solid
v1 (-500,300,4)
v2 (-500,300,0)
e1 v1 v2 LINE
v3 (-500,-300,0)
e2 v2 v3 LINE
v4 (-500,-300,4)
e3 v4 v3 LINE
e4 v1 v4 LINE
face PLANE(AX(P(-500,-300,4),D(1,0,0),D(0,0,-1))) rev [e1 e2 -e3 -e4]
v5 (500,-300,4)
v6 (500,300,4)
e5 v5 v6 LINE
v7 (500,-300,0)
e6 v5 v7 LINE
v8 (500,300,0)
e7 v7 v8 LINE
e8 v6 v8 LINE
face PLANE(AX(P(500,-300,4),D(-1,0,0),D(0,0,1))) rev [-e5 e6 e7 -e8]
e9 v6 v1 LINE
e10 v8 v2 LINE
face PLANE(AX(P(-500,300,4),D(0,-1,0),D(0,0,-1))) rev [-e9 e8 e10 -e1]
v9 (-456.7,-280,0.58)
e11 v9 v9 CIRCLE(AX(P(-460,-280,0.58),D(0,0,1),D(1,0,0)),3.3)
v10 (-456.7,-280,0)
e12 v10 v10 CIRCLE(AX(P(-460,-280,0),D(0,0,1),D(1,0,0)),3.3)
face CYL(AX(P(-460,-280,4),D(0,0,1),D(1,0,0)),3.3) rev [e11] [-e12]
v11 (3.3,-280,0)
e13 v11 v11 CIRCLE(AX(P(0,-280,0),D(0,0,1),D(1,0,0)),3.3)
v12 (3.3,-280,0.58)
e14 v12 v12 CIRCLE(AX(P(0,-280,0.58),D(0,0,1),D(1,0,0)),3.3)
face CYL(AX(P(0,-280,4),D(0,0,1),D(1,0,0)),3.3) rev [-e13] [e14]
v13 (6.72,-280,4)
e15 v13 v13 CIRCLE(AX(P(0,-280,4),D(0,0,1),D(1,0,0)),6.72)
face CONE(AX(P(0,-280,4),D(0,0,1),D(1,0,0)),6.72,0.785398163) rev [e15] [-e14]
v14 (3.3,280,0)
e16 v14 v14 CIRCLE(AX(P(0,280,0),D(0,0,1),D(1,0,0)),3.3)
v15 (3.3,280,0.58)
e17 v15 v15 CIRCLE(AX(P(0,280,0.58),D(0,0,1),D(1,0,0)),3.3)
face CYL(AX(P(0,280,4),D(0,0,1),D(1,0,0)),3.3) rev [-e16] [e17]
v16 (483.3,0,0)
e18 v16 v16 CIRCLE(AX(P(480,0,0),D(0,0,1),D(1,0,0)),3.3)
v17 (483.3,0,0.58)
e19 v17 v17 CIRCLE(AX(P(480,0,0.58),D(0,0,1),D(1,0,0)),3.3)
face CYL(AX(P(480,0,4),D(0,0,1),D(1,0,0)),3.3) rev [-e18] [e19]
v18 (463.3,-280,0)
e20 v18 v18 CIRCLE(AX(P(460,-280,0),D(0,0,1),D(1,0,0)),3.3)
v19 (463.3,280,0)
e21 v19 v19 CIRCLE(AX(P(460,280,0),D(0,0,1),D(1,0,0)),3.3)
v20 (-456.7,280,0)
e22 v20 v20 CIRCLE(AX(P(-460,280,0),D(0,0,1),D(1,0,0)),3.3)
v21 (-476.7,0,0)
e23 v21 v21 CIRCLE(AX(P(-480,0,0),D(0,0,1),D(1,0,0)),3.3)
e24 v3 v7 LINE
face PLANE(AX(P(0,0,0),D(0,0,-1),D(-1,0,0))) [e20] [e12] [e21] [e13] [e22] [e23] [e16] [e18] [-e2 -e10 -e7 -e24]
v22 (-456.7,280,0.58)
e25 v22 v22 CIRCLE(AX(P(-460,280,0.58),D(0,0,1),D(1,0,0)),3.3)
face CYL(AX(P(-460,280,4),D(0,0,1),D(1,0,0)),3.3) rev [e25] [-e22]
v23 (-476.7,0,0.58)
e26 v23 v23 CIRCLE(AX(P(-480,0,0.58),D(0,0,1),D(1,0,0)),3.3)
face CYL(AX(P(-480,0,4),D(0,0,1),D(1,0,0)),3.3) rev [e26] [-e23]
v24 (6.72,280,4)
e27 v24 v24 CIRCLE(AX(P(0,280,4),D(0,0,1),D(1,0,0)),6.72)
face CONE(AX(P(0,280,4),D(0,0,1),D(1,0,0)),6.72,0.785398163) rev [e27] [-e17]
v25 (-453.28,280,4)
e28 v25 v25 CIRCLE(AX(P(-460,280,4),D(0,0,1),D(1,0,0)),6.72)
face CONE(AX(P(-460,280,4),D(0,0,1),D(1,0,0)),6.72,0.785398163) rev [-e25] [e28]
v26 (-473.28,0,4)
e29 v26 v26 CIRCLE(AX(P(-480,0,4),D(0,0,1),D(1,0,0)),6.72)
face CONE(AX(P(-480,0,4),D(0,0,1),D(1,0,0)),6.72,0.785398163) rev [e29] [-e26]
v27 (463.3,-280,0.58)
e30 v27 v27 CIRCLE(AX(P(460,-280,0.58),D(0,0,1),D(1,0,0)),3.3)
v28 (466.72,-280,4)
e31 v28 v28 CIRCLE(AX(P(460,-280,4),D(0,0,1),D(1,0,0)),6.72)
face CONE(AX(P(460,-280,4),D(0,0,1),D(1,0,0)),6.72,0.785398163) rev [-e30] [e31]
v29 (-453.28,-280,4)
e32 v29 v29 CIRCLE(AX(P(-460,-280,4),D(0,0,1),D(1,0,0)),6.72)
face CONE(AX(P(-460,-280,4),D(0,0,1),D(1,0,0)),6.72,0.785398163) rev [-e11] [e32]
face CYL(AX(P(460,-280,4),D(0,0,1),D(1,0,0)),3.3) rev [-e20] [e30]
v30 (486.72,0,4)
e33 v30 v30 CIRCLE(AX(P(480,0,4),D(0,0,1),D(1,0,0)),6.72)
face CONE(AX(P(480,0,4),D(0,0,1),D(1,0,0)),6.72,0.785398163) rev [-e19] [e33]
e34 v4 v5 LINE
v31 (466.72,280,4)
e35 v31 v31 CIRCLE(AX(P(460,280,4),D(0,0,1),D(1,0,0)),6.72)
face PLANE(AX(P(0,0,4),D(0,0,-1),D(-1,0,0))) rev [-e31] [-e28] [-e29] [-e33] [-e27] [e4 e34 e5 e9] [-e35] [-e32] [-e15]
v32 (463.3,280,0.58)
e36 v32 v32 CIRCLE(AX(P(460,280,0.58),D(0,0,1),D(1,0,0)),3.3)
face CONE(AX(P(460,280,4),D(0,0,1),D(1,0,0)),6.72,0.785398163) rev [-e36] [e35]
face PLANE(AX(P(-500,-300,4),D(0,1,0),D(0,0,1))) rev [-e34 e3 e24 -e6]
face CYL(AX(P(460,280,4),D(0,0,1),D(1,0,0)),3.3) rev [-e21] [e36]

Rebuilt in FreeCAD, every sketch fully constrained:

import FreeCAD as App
import Part
import Sketcher
from FreeCAD import Vector
Q = App.Units.Quantity

doc = App.newDocument("Part")
body = doc.addObject("PartDesign::Body", "Body")

# Sketch on XY plane
sketch1 = doc.addObject("Sketcher::SketchObject", "Sketch")
body.addObject(sketch1)
sketch1.AttachmentSupport = (doc.XY_Plane, [""])
sketch1.MapMode = "FlatFace"
sketch1.addGeometry([
    Part.LineSegment(Vector(-500, 300, 0), Vector(-500, -300, 0)),
    Part.LineSegment(Vector(-500, -300, 0), Vector(500, -300, 0)),
    Part.LineSegment(Vector(500, -300, 0), Vector(500, 300, 0)),
    Part.LineSegment(Vector(500, 300, 0), Vector(-500, 300, 0)),
], False)
sketch1.addConstraint([
    Sketcher.Constraint("Coincident", 0, 2, 1, 1),
    Sketcher.Constraint("Coincident", 1, 2, 2, 1),
    Sketcher.Constraint("Coincident", 2, 2, 3, 1),
    Sketcher.Constraint("Coincident", 3, 2, 0, 1),
    Sketcher.Constraint("Vertical", 0),
    Sketcher.Constraint("Horizontal", 1),
    Sketcher.Constraint("Vertical", 2),
    Sketcher.Constraint("Horizontal", 3),
    Sketcher.Constraint("Symmetric", 0, 2, 2, 2, -1, 1),
    Sketcher.Constraint("DistanceX", 1, 1, 1, 2, 1000.0),
    Sketcher.Constraint("DistanceY", 0, 2, 0, 1, 600.0),
])
pad1 = doc.addObject("PartDesign::Pad", "Pad")
body.addObject(pad1)
pad1.Profile = sketch1
pad1.Length = 4

# Sketch on YZ plane
sketch2 = doc.addObject("Sketcher::SketchObject", "Sketch001")
body.addObject(sketch2)
sketch2.AttachmentSupport = (doc.YZ_Plane, [""])
sketch2.MapMode = "FlatFace"
sketch2.AttachmentOffset = App.Placement(Vector(0, 0, -480), App.Rotation())
sketch2.addGeometry([
    Part.LineSegment(Vector(0, 0, 0), Vector(0, 4, 0)),  # 0
    Part.LineSegment(Vector(0, 4, 0), Vector(-6.7, 4, 0)),  # 1
    Part.LineSegment(Vector(-6.7, 4, 0), Vector(-3.3, 0.6, 0)),  # 2
    Part.LineSegment(Vector(-3.3, 0.6, 0), Vector(-3.3, 0, 0)),  # 3
    Part.LineSegment(Vector(-3.3, 0, 0), Vector(0, 0, 0)),  # 4
], False)
sketch2.addConstraint([
    Sketcher.Constraint("Coincident", 0, 2, 1, 1),
    Sketcher.Constraint("Coincident", 1, 2, 2, 1),
    Sketcher.Constraint("Coincident", 2, 2, 3, 1),
    Sketcher.Constraint("Coincident", 3, 2, 4, 1),
    Sketcher.Constraint("Coincident", 4, 2, 0, 1),
    Sketcher.Constraint("Vertical", 0),
    Sketcher.Constraint("Horizontal", 1),
    Sketcher.Constraint("Vertical", 3),
    Sketcher.Constraint("Horizontal", 4),
    Sketcher.Constraint("Coincident", 4, 2, -1, 1),
    Sketcher.Constraint("DistanceY", 0, 1, 0, 2, 4.0),
    Sketcher.Constraint("Angle", 2, Q("-45 deg")),
    Sketcher.Constraint("DistanceX", 4, 1, 4, 2, 3.3),
    Sketcher.Constraint("DistanceX", 1, 2, 1, 1, 6.72),
])
groove = doc.addObject("PartDesign::Groove", "Groove")
body.addObject(groove)
groove.Profile = sketch2
groove.ReferenceAxis = (sketch2, ["V_Axis"])
groove.Angle = 360
doc.recompute()

linearpattern = doc.addObject("PartDesign::LinearPattern", "LinearPattern")
body.addObject(linearpattern)
linearpattern.Originals = [groove]
linearpattern.Direction = (doc.X_Axis, [""])
linearpattern.Mode = "offset"
linearpattern.Offset = 960
linearpattern.Occurrences = 2
body.Tip = linearpattern
doc.recompute()

datumline = doc.addObject("PartDesign::Line", "DatumLine")
body.addObject(datumline)
datumline.Placement = App.Placement(Vector(0, 0, 0), App.Rotation(Vector(0, 0, 1), Vector(0.07124705, -0.9974587, 0)))
linearpattern2 = doc.addObject("PartDesign::LinearPattern", "LinearPattern001")
body.addObject(linearpattern2)
linearpattern2.Originals = [groove]
linearpattern2.Direction = (datumline, [""])
linearpattern2.Mode = "offset"
linearpattern2.Offset = 280.713377
linearpattern2.Occurrences = 2
body.Tip = linearpattern2
doc.recompute()

datumline2 = doc.addObject("PartDesign::Line", "DatumLine001")
body.addObject(datumline2)
datumline2.Placement = App.Placement(Vector(0, 0, 0), App.Rotation(Vector(0, 0, 1), Vector(0.863778901, -0.503871026, 0)))
linearpattern3 = doc.addObject("PartDesign::LinearPattern", "LinearPattern002")
body.addObject(linearpattern3)
linearpattern3.Originals = [groove]
linearpattern3.Direction = (datumline2, [""])
linearpattern3.Mode = "offset"
linearpattern3.Offset = 555.69776
linearpattern3.Occurrences = 2
body.Tip = linearpattern3
doc.recompute()

datumline3 = doc.addObject("PartDesign::Line", "DatumLine002")
body.addObject(datumline3)
datumline3.Placement = App.Placement(Vector(0, 0, 0), App.Rotation(Vector(0, 0, 1), Vector(0.958385684, -0.285476587, 0)))
linearpattern4 = doc.addObject("PartDesign::LinearPattern", "LinearPattern003")
body.addObject(linearpattern4)
linearpattern4.Originals = [groove]
linearpattern4.Direction = (datumline3, [""])
linearpattern4.Mode = "offset"
linearpattern4.Offset = 980.815987
linearpattern4.Occurrences = 2
body.Tip = linearpattern4
doc.recompute()

datumline4 = doc.addObject("PartDesign::Line", "DatumLine003")
body.addObject(datumline4)
datumline4.Placement = App.Placement(Vector(0, 0, 0), App.Rotation(Vector(0, 0, 1), Vector(0.958385684, 0.285476587, 0)))
linearpattern5 = doc.addObject("PartDesign::LinearPattern", "LinearPattern004")
body.addObject(linearpattern5)
linearpattern5.Originals = [groove]
linearpattern5.Direction = (datumline4, [""])
linearpattern5.Mode = "offset"
linearpattern5.Offset = 980.815987
linearpattern5.Occurrences = 2
body.Tip = linearpattern5
doc.recompute()

datumline5 = doc.addObject("PartDesign::Line", "DatumLine004")
body.addObject(datumline5)
datumline5.Placement = App.Placement(Vector(0, 0, 0), App.Rotation(Vector(0, 0, 1), Vector(0.863778901, 0.503871026, 0)))
linearpattern6 = doc.addObject("PartDesign::LinearPattern", "LinearPattern005")
body.addObject(linearpattern6)
linearpattern6.Originals = [groove]
linearpattern6.Direction = (datumline5, [""])
linearpattern6.Mode = "offset"
linearpattern6.Offset = 555.69776
linearpattern6.Occurrences = 2
body.Tip = linearpattern6
doc.recompute()

datumline6 = doc.addObject("PartDesign::Line", "DatumLine005")
body.addObject(datumline6)
datumline6.Placement = App.Placement(Vector(0, 0, 0), App.Rotation(Vector(0, 0, 1), Vector(0.07124705, 0.9974587, 0)))
linearpattern7 = doc.addObject("PartDesign::LinearPattern", "LinearPattern006")
body.addObject(linearpattern7)
linearpattern7.Originals = [groove]
linearpattern7.Direction = (datumline6, [""])
linearpattern7.Mode = "offset"
linearpattern7.Offset = 280.713377
linearpattern7.Occurrences = 2
body.Tip = linearpattern7

doc.recompute()
